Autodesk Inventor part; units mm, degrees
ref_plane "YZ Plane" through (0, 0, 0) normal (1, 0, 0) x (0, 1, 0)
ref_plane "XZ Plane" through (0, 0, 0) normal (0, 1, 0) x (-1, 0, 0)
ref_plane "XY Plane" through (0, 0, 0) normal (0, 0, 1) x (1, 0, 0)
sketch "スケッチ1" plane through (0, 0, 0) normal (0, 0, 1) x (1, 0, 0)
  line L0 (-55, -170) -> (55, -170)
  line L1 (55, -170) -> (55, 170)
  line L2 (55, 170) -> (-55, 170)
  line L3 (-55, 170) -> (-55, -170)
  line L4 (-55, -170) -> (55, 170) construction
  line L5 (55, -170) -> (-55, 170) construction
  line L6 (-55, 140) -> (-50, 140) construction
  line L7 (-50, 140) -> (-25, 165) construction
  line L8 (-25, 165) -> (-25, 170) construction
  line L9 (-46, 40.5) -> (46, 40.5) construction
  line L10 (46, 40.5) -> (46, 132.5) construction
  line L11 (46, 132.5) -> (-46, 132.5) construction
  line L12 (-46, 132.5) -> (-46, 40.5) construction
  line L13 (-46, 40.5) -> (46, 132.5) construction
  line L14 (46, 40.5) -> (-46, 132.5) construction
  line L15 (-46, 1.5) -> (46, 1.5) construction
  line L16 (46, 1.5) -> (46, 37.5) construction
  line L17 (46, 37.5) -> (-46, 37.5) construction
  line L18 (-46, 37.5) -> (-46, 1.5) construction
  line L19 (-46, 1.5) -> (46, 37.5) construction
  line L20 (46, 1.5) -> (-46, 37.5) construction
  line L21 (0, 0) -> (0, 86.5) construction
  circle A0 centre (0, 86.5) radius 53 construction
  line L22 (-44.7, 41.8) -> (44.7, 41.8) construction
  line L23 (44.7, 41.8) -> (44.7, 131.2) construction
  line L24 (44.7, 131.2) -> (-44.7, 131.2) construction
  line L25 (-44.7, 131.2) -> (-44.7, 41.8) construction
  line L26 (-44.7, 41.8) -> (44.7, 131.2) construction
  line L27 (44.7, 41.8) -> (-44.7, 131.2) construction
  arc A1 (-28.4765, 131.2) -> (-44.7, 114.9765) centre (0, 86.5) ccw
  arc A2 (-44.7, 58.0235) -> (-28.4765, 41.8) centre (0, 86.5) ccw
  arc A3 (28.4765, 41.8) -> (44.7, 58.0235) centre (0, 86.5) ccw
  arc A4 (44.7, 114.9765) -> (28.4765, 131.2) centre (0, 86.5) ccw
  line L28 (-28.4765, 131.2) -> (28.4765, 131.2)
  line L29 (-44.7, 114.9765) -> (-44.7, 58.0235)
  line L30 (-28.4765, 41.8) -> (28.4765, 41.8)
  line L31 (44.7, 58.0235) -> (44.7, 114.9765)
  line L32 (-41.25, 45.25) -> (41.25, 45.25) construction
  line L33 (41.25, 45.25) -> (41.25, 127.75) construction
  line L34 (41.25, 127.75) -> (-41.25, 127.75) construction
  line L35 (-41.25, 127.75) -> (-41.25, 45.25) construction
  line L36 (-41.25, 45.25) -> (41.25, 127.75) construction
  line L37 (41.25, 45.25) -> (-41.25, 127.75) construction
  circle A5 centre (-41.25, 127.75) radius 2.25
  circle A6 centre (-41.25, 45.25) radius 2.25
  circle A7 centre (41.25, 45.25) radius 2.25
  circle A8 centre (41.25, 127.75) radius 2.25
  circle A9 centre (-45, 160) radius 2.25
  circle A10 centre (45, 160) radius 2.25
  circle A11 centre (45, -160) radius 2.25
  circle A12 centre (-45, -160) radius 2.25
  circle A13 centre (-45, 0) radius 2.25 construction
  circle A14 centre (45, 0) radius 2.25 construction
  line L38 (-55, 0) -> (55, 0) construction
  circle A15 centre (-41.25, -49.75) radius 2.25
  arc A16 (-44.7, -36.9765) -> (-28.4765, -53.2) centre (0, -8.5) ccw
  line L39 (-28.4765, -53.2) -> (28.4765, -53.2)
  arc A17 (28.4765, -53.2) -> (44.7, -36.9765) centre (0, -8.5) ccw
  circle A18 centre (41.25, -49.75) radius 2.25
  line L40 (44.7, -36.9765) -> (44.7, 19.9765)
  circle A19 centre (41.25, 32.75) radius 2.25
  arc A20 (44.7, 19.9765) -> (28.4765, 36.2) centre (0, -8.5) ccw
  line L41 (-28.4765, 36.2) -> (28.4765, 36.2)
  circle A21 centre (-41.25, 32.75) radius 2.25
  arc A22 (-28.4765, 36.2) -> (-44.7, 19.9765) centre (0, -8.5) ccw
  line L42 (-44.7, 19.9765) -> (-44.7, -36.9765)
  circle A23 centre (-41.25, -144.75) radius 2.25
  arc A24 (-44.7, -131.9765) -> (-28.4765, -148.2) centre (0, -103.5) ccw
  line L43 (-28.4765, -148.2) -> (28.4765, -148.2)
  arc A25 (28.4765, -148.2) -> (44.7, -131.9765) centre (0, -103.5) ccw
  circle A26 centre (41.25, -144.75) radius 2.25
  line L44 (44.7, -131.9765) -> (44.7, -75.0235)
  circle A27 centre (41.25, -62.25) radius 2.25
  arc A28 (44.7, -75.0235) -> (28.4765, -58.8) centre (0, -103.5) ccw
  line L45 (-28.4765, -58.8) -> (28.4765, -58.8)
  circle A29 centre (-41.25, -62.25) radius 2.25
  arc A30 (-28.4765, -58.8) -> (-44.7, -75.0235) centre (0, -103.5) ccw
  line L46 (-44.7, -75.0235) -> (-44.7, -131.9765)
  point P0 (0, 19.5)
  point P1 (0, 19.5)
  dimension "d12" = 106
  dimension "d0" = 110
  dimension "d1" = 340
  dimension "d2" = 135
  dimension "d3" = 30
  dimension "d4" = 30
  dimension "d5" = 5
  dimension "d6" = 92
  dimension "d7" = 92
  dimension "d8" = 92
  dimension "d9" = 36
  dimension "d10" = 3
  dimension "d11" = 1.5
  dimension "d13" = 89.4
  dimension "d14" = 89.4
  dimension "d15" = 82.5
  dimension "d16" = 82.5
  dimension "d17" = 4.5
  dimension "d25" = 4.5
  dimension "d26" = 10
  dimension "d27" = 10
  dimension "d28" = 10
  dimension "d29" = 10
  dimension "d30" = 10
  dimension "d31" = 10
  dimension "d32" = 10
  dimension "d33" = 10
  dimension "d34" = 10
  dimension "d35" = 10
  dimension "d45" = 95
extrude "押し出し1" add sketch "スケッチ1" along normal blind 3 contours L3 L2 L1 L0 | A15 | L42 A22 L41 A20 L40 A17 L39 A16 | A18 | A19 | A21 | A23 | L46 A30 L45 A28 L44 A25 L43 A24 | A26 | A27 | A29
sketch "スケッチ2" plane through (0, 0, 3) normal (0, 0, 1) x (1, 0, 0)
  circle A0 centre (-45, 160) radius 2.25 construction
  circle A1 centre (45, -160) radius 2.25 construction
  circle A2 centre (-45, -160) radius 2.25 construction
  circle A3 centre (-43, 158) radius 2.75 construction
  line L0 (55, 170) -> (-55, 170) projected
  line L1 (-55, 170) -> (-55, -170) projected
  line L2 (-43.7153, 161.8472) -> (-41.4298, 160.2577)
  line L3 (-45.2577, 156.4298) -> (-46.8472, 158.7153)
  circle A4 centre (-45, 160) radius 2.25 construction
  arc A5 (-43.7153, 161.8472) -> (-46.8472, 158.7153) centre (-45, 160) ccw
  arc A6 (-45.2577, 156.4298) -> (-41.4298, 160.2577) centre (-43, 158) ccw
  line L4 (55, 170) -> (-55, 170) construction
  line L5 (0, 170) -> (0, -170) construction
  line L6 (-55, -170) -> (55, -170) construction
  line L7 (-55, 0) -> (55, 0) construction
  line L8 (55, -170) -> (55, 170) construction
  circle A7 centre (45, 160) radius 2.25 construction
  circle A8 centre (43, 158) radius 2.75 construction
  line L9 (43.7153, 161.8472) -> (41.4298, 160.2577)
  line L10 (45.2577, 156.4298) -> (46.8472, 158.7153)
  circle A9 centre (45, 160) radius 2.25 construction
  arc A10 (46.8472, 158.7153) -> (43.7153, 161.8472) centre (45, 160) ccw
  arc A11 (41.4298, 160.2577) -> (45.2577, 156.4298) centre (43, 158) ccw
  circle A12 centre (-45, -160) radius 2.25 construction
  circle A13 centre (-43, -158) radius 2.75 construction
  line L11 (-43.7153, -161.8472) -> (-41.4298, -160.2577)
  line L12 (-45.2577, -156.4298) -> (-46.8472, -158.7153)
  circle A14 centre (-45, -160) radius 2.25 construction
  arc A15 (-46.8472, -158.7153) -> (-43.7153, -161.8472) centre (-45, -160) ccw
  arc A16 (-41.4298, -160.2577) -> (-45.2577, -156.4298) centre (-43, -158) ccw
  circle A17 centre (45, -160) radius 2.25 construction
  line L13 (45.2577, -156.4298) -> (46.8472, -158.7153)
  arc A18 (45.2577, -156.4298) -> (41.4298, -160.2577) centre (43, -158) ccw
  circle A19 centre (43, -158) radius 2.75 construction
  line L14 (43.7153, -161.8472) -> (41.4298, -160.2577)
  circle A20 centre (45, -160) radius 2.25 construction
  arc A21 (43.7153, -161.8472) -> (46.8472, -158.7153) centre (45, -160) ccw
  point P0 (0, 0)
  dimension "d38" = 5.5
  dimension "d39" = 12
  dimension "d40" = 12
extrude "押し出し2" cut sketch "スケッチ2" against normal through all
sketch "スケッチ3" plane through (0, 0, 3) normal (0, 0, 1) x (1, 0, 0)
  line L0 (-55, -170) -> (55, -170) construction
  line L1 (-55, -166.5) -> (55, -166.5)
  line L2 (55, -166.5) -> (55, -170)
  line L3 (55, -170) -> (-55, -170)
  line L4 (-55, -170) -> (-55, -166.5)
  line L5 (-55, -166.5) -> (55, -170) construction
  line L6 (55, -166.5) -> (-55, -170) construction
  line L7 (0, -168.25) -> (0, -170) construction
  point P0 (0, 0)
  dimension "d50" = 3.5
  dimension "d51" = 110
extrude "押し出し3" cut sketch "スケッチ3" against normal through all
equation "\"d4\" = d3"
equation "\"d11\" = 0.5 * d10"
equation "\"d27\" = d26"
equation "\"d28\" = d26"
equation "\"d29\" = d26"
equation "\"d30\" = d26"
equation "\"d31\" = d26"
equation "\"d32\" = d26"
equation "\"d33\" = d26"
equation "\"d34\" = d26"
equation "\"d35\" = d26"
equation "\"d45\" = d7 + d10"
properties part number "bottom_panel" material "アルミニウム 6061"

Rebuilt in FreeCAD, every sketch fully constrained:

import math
import FreeCAD as App
import Part
import Sketcher

V = App.Vector

doc = App.newDocument("Part")
params = doc.addObject("Spreadsheet::Sheet", "Params")
for row, (alias, value) in enumerate([
    ("sketch1_radius", "53 mm"),
    ("sketch1_diameter", "4.5 mm"),
    ("sketch1_width", "110 mm"),
    ("sketch1_height", "340 mm"),
    ("pad1_length", "3 mm"),
    ("sketch2_radius", "2.75 mm"),
    ("sketch2_radius2", "2.25 mm"),
    ("sketch3_width", "110 mm"),
    ("sketch3_height", "3.5 mm"),
], start=1):
    params.set(f"A{row}", alias)
    params.set(f"B{row}", "=" + value)
    params.setAlias(f"B{row}", alias)

body = doc.addObject("PartDesign::Body", "Body")

sketch1 = body.newObject("Sketcher::SketchObject", "Sketch")
sketch1.AttachmentSupport = (doc.getObject("XY_Plane"), [""])
sketch1.MapMode = "FlatFace"
sketch1.addGeometry([
    Part.LineSegment(V(-55, 170, 0), V(-55, -170, 0)),
    Part.LineSegment(V(-55, -170, 0), V(55, -170, 0)),
    Part.LineSegment(V(55, -170, 0), V(55, 170, 0)),
    Part.LineSegment(V(55, 170, 0), V(-55, 170, 0)),
    Part.Circle(V(-45, -160, 0), V(0, 0, 1), 2.2),
    Part.Circle(V(45, -160, 0), V(0, 0, 1), 2.2),
    Part.Circle(V(-41.2, 45.2, 0), V(0, 0, 1), 2.2),
    Part.Circle(V(-45, 160, 0), V(0, 0, 1), 2.2),
    Part.Circle(V(-41.2, 127.8, 0), V(0, 0, 1), 2.2),
    Part.Circle(V(41.2, 45.2, 0), V(0, 0, 1), 2.2),
    Part.ArcOfCircle(Part.Circle(V(0, 86.5, 0), V(0, 0, 1), 53), math.radians(122), math.radians(148)),
    Part.LineSegment(V(-28.5, 131.2, 0), V(28.5, 131.2, 0)),
    Part.ArcOfCircle(Part.Circle(V(0, 86.5, 0), V(0, 0, 1), 53), math.radians(32), math.radians(58)),
    Part.LineSegment(V(44.7, 115, 0), V(44.7, 58, 0)),
    Part.ArcOfCircle(Part.Circle(V(0, 86.5, 0), V(0, 0, 1), 53), math.radians(-58), math.radians(-32)),
    Part.LineSegment(V(28.5, 41.8, 0), V(-28.5, 41.8, 0)),
    Part.ArcOfCircle(Part.Circle(V(0, 86.5, 0), V(0, 0, 1), 53), math.radians(-148), math.radians(-122)),
    Part.LineSegment(V(-44.7, 58, 0), V(-44.7, 115, 0)),
    Part.Circle(V(41.2, 127.8, 0), V(0, 0, 1), 2.2),
    Part.Circle(V(45, 160, 0), V(0, 0, 1), 2.2),
], False)
sketch1.addConstraint([
    Sketcher.Constraint("Coincident", 0, 2, 1, 1),
    Sketcher.Constraint("Coincident", 1, 2, 2, 1),
    Sketcher.Constraint("Coincident", 2, 2, 3, 1),
    Sketcher.Constraint("Coincident", 3, 2, 0, 1),
    Sketcher.Constraint("Coincident", 10, 1, 11, 1),
    Sketcher.Constraint("Coincident", 11, 2, 12, 2),
    Sketcher.Constraint("Coincident", 12, 1, 13, 1),
    Sketcher.Constraint("Coincident", 13, 2, 14, 2),
    Sketcher.Constraint("Coincident", 14, 1, 15, 1),
    Sketcher.Constraint("Coincident", 15, 2, 16, 2),
    Sketcher.Constraint("Coincident", 16, 1, 17, 1),
    Sketcher.Constraint("Coincident", 17, 2, 10, 2),
    Sketcher.Constraint("Vertical", 0),
    Sketcher.Constraint("Horizontal", 1),
    Sketcher.Constraint("Vertical", 2),
    Sketcher.Constraint("Horizontal", 3),
    Sketcher.Constraint("Horizontal", 11),
    Sketcher.Constraint("Vertical", 13),
    Sketcher.Constraint("Horizontal", 15),
    Sketcher.Constraint("Vertical", 17),
    Sketcher.Constraint("Coincident", 12, 3, 10, 3),
    Sketcher.Constraint("Coincident", 14, 3, 10, 3),
    Sketcher.Constraint("Coincident", 16, 3, 10, 3),
    Sketcher.Constraint("Equal", 4, 5),
    Sketcher.Constraint("Equal", 5, 6),
    Sketcher.Constraint("Equal", 6, 7),
    Sketcher.Constraint("Equal", 7, 8),
    Sketcher.Constraint("Equal", 8, 9),
    Sketcher.Constraint("Equal", 10, 12),
    Sketcher.Constraint("Equal", 12, 14),
    Sketcher.Constraint("Equal", 14, 16),
    Sketcher.Constraint("Equal", 9, 18),
    Sketcher.Constraint("Equal", 18, 19),
    Sketcher.Constraint("Symmetric", 5, 3, 7, 3, -1, 1),
    Sketcher.Constraint("Symmetric", 4, 3, 19, 3, -1, 1),
    Sketcher.Constraint("Symmetric", 0, 2, 2, 2, -1, 1),
    Sketcher.Constraint("Symmetric", 4, 3, 5, 3, -2),
    Sketcher.Constraint("Symmetric", 6, 3, 9, 3, -2),
    Sketcher.Constraint("Symmetric", 8, 3, 18, 3, -2),
    Sketcher.Constraint("Symmetric", 13, 2, 16, 1, -2),
    Sketcher.Constraint("Vertical", 6, 3, 8, 3),
    Sketcher.Constraint("Vertical", 11, 2, 14, 1),
    Sketcher.Constraint("Equal", 15, 13),
    Sketcher.Constraint("Radius", 10, 53.0),
    Sketcher.Constraint("Diameter", 4, 4.5),
    Sketcher.Constraint("DistanceX", 1, 1, 1, 2, 110.0),
    Sketcher.Constraint("DistanceY", 0, 2, 0, 1, 340.0),
    Sketcher.Constraint("DistanceX", 0, 2, 4, 3, 10.0),
    Sketcher.Constraint("DistanceY", 0, 2, 4, 3, 10.0),
    Sketcher.Constraint("DistanceY", 6, 3, 8, 3, 82.5),
    Sketcher.Constraint("DistanceX", 6, 3, 9, 3, 82.5),
    Sketcher.Constraint("DistanceY", -1, 1, 10, 3, 86.5),
    Sketcher.Constraint("DistanceY", -1, 1, 10, 1, 131.2),
    Sketcher.Constraint("DistanceY", -1, 1, 6, 3, 45.25),
])
sketch1.setExpression("Constraints[43]", "Params.sketch1_radius")
sketch1.setExpression("Constraints[44]", "Params.sketch1_diameter")
sketch1.setExpression("Constraints[45]", "Params.sketch1_width")
sketch1.setExpression("Constraints[46]", "Params.sketch1_height")
pad1 = body.newObject("PartDesign::Pad", "Pad")
pad1.Profile = sketch1
pad1.setExpression("Length", "Params.pad1_length")

sketch2 = body.newObject("Sketcher::SketchObject", "Sketch001")
sketch2.AttachmentSupport = (doc.getObject("XY_Plane"), [""])
sketch2.MapMode = "FlatFace"
sketch2.AttachmentOffset = App.Placement(V(0, 0, 3), App.Rotation())
sketch2.addGeometry([
    Part.LineSegment(V(-41.4, 160.3, 0), V(-43.7, 161.8, 0)),
    Part.ArcOfCircle(Part.Circle(V(-45, 160, 0), V(0, 0, 1), 2.3), math.radians(55), math.radians(215)),
    Part.LineSegment(V(-46.8, 158.7, 0), V(-45.3, 156.4, 0)),
    Part.ArcOfCircle(Part.Circle(V(-43, 158, 0), V(0, 0, 1), 2.8), math.radians(-145), math.radians(55)),
    Part.ArcOfCircle(Part.Circle(V(45, 160, 0), V(0, 0, 1), 2.3), math.radians(-35), math.radians(125)),
    Part.LineSegment(V(43.7, 161.8, 0), V(41.4, 160.3, 0)),
    Part.ArcOfCircle(Part.Circle(V(43, 158, 0), V(0, 0, 1), 2.8), math.radians(125), math.radians(325)),
    Part.LineSegment(V(45.3, 156.4, 0), V(46.8, 158.7, 0)),
    Part.ArcOfCircle(Part.Circle(V(-45, -160, 0), V(0, 0, 1), 2.3), math.radians(145), math.radians(305)),
    Part.LineSegment(V(-43.7, -161.8, 0), V(-41.4, -160.3, 0)),
    Part.ArcOfCircle(Part.Circle(V(-43, -158, 0), V(0, 0, 1), 2.8), math.radians(-55), math.radians(145)),
    Part.LineSegment(V(-45.3, -156.4, 0), V(-46.8, -158.7, 0)),
    Part.LineSegment(V(46.8, -158.7, 0), V(45.3, -156.4, 0)),
    Part.ArcOfCircle(Part.Circle(V(43, -158, 0), V(0, 0, 1), 2.8), math.radians(35), math.radians(235)),
    Part.LineSegment(V(41.4, -160.3, 0), V(43.7, -161.8, 0)),
    Part.ArcOfCircle(Part.Circle(V(45, -160, 0), V(0, 0, 1), 2.3), math.radians(-125), math.radians(35)),
], False)
sketch2.addConstraint([
    Sketcher.Constraint("Tangent", 0, 2, 1, 1),
    Sketcher.Constraint("Tangent", 1, 2, 2, 1),
    Sketcher.Constraint("Tangent", 2, 2, 3, 1),
    Sketcher.Constraint("Tangent", 3, 2, 0, 1),
    Sketcher.Constraint("Tangent", 4, 2, 5, 1),
    Sketcher.Constraint("Tangent", 5, 2, 6, 1),
    Sketcher.Constraint("Tangent", 6, 2, 7, 1),
    Sketcher.Constraint("Tangent", 7, 2, 4, 1),
    Sketcher.Constraint("Tangent", 8, 2, 9, 1),
    Sketcher.Constraint("Tangent", 9, 2, 10, 1),
    Sketcher.Constraint("Tangent", 10, 2, 11, 1),
    Sketcher.Constraint("Tangent", 11, 2, 8, 1),
    Sketcher.Constraint("Tangent", 12, 2, 13, 1),
    Sketcher.Constraint("Tangent", 13, 2, 14, 1),
    Sketcher.Constraint("Tangent", 14, 2, 15, 1),
    Sketcher.Constraint("Tangent", 15, 2, 12, 1),
    Sketcher.Constraint("Equal", 1, 4),
    Sketcher.Constraint("Equal", 3, 6),
    Sketcher.Constraint("Equal", 4, 8),
    Sketcher.Constraint("Equal", 6, 10),
    Sketcher.Constraint("Equal", 10, 13),
    Sketcher.Constraint("Equal", 8, 15),
    Sketcher.Constraint("Symmetric", 4, 3, 8, 3, -1, 1),
    Sketcher.Constraint("Symmetric", 6, 3, 10, 3, -1, 1),
    Sketcher.Constraint("Symmetric", 3, 3, 13, 3, -1, 1),
    Sketcher.Constraint("Symmetric", 1, 3, 15, 3, -1, 1),
    Sketcher.Constraint("Symmetric", 1, 3, 4, 3, -2),
    Sketcher.Constraint("Symmetric", 3, 3, 6, 3, -2),
    Sketcher.Constraint("Perpendicular", 2, 5),
    Sketcher.Constraint("Radius", 3, 2.75),
    Sketcher.Constraint("Radius", 1, 2.25),
    Sketcher.Constraint("DistanceX", 1, 3, -1, 1, 45.0),
    Sketcher.Constraint("DistanceY", -1, 1, 1, 3, 160.0),
    Sketcher.Constraint("DistanceX", 3, 3, -1, 1, 43.0),
])
sketch2.setExpression("Constraints[29]", "Params.sketch2_radius")
sketch2.setExpression("Constraints[30]", "Params.sketch2_radius2")
pocket1 = body.newObject("PartDesign::Pocket", "Pocket")
pocket1.Profile = sketch2
pocket1.Type = "ThroughAll"

sketch3 = body.newObject("Sketcher::SketchObject", "Sketch002")
sketch3.AttachmentSupport = (doc.getObject("XY_Plane"), [""])
sketch3.MapMode = "FlatFace"
sketch3.AttachmentOffset = App.Placement(V(0, 0, 3), App.Rotation())
sketch3.addGeometry([
    Part.LineSegment(V(55, -166.5, 0), V(-55, -166.5, 0)),
    Part.LineSegment(V(-55, -166.5, 0), V(-55, -170, 0)),
    Part.LineSegment(V(-55, -170, 0), V(55, -170, 0)),
    Part.LineSegment(V(55, -170, 0), V(55, -166.5, 0)),
], False)
sketch3.addConstraint([
    Sketcher.Constraint("Coincident", 0, 2, 1, 1),
    Sketcher.Constraint("Coincident", 1, 2, 2, 1),
    Sketcher.Constraint("Coincident", 2, 2, 3, 1),
    Sketcher.Constraint("Coincident", 3, 2, 0, 1),
    Sketcher.Constraint("Horizontal", 0),
    Sketcher.Constraint("Vertical", 1),
    Sketcher.Constraint("Horizontal", 2),
    Sketcher.Constraint("Vertical", 3),
    Sketcher.Constraint("DistanceX", 0, 2, 0, 1, 110.0),
    Sketcher.Constraint("DistanceY", 1, 2, 1, 1, 3.5),
    Sketcher.Constraint("DistanceX", 0, 2, -1, 1, 55.0),
    Sketcher.Constraint("DistanceY", 1, 2, -1, 1, 170.0),
])
sketch3.setExpression("Constraints[8]", "Params.sketch3_width")
sketch3.setExpression("Constraints[9]", "Params.sketch3_height")
pocket2 = body.newObject("PartDesign::Pocket", "Pocket001")
pocket2.Profile = sketch3
pocket2.Type = "ThroughAll"

doc.recompute()
